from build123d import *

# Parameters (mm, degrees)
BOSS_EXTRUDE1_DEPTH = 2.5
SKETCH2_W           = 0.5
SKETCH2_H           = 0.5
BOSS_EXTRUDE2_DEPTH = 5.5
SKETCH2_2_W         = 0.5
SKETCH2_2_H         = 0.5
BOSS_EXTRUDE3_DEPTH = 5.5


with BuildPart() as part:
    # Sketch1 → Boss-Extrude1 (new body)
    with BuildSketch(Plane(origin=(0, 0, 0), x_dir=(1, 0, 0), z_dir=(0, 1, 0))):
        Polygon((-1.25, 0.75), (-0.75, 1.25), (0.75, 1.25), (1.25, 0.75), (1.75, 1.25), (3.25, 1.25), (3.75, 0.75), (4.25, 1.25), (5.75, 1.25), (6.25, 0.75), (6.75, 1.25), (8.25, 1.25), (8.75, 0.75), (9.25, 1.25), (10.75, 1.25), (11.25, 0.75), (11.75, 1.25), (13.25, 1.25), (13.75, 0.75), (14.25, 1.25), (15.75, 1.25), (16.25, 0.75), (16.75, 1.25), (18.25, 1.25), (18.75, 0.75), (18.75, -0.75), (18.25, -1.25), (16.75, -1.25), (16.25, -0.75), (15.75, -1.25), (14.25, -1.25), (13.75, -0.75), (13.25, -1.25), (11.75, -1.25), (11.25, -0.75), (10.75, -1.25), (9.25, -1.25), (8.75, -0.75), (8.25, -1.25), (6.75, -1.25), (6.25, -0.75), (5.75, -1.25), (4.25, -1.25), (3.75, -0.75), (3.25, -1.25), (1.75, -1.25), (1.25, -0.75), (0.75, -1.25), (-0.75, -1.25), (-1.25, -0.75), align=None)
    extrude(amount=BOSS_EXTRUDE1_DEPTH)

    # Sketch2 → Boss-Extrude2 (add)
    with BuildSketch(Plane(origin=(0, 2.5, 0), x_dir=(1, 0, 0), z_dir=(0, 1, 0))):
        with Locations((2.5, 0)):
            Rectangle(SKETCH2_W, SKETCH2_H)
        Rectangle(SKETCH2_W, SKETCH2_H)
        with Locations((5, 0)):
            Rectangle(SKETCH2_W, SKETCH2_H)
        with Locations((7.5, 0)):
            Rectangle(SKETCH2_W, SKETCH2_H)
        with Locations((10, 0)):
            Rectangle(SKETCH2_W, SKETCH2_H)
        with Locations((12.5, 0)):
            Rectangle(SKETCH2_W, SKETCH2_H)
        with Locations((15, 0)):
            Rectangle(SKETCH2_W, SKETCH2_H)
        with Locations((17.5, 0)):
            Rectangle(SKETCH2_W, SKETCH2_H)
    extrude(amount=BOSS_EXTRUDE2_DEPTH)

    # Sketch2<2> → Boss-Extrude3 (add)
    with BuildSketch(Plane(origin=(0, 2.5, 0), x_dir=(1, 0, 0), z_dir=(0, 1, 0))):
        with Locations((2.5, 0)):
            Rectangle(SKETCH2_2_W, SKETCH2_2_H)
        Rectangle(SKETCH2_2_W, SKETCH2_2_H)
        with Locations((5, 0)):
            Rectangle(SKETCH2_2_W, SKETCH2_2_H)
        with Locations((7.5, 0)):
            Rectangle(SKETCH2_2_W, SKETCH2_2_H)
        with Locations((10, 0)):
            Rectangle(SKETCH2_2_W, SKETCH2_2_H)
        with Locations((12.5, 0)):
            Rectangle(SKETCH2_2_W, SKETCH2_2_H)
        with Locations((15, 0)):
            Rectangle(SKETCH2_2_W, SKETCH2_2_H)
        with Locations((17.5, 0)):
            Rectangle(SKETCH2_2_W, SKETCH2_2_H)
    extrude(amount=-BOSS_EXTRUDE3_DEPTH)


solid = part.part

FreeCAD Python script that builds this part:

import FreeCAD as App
import Part
import Sketcher
Q = App.Units.Quantity


def add_polygon(sketch, points):
    """Adds a closed chain of lines whose ends are joined by coincident constraints."""
    first, n = sketch.GeometryCount, len(points)
    for a, b in zip(points, points[1:] + points[:1]):
        sketch.addGeometry(Part.LineSegment(App.Vector(*a, 0), App.Vector(*b, 0)), False)
    for i in range(n):
        sketch.addConstraint(Sketcher.Constraint("Coincident", first + i, 2, first + (i + 1) % n, 1))

doc = App.newDocument("Part")
body = doc.addObject("PartDesign::Body", "Body")

# Sketch on XZ plane
sketch1 = doc.addObject("Sketcher::SketchObject", "Sketch")
body.addObject(sketch1)
sketch1.AttachmentSupport = (doc.XZ_Plane, [""])
sketch1.MapMode = "FlatFace"
add_polygon(sketch1, [(-0.8, -1.2), (-1.2, -0.8), (-1.2, 0.8), (-0.8, 1.2), (0.8, 1.2), (1.2, 0.8), (1.8, 1.2), (3.2, 1.2), (3.8, 0.8), (4.2, 1.2), (5.8, 1.2), (6.2, 0.8), (6.8, 1.2), (8.2, 1.2), (8.8, 0.8), (9.2, 1.2), (10.8, 1.2), (11.2, 0.8), (11.8, 1.2), (13.2, 1.2), (13.8, 0.8), (14.2, 1.2), (15.8, 1.2), (16.2, 0.8), (16.8, 1.2), (18.2, 1.2), (18.8, 0.8), (18.8, -0.8), (18.2, -1.2), (16.8, -1.2), (16.2, -0.8), (15.8, -1.2), (14.2, -1.2), (13.8, -0.8), (13.2, -1.2), (11.8, -1.2), (11.2, -0.8), (10.8, -1.2), (9.2, -1.2), (8.8, -0.8), (8.2, -1.2), (6.8, -1.2), (6.2, -0.8), (5.8, -1.2), (4.2, -1.2), (3.8, -0.8), (3.2, -1.2), (1.8, -1.2), (1.2, -0.8), (0.8, -1.2)])  # lines 0-49
sketch1.addConstraint(Sketcher.Constraint("Vertical", 1))
sketch1.addConstraint(Sketcher.Constraint("Horizontal", 3))
sketch1.addConstraint(Sketcher.Constraint("Horizontal", 6))
sketch1.addConstraint(Sketcher.Constraint("Horizontal", 9))
sketch1.addConstraint(Sketcher.Constraint("Horizontal", 12))
sketch1.addConstraint(Sketcher.Constraint("Horizontal", 15))
sketch1.addConstraint(Sketcher.Constraint("Horizontal", 18))
sketch1.addConstraint(Sketcher.Constraint("Horizontal", 21))
sketch1.addConstraint(Sketcher.Constraint("Horizontal", 24))
sketch1.addConstraint(Sketcher.Constraint("Vertical", 26))
sketch1.addConstraint(Sketcher.Constraint("Horizontal", 28))
sketch1.addConstraint(Sketcher.Constraint("Horizontal", 31))
sketch1.addConstraint(Sketcher.Constraint("Horizontal", 34))
sketch1.addConstraint(Sketcher.Constraint("Horizontal", 37))
sketch1.addConstraint(Sketcher.Constraint("Horizontal", 40))
sketch1.addConstraint(Sketcher.Constraint("Horizontal", 43))
sketch1.addConstraint(Sketcher.Constraint("Horizontal", 46))
sketch1.addConstraint(Sketcher.Constraint("Horizontal", 49))
sketch1.addConstraint(Sketcher.Constraint("Symmetric", 0, 2, 4, 2, -1, 1))
sketch1.addConstraint(Sketcher.Constraint("Symmetric", 1, 2, 47, 2, -1, 1))
sketch1.addConstraint(Sketcher.Constraint("Symmetric", 2, 2, 48, 2, -1, 1))
sketch1.addConstraint(Sketcher.Constraint("Symmetric", 24, 2, 27, 2, -1))
sketch1.addConstraint(Sketcher.Constraint("Symmetric", 22, 2, 29, 2, -1))
sketch1.addConstraint(Sketcher.Constraint("Symmetric", 21, 2, 30, 2, -1))
sketch1.addConstraint(Sketcher.Constraint("Symmetric", 19, 2, 32, 2, -1))
sketch1.addConstraint(Sketcher.Constraint("Symmetric", 18, 2, 33, 2, -1))
sketch1.addConstraint(Sketcher.Constraint("Symmetric", 16, 2, 35, 2, -1))
sketch1.addConstraint(Sketcher.Constraint("Symmetric", 15, 2, 36, 2, -1))
sketch1.addConstraint(Sketcher.Constraint("Symmetric", 13, 2, 38, 2, -1))
sketch1.addConstraint(Sketcher.Constraint("Symmetric", 12, 2, 39, 2, -1))
sketch1.addConstraint(Sketcher.Constraint("Symmetric", 10, 2, 41, 2, -1))
sketch1.addConstraint(Sketcher.Constraint("Symmetric", 9, 2, 42, 2, -1))
sketch1.addConstraint(Sketcher.Constraint("Symmetric", 7, 2, 44, 2, -1))
sketch1.addConstraint(Sketcher.Constraint("Symmetric", 6, 2, 45, 2, -1))
sketch1.addConstraint(Sketcher.Constraint("Perpendicular", 0, 2))
sketch1.addConstraint(Sketcher.Constraint("Perpendicular", 2, 4))
sketch1.addConstraint(Sketcher.Constraint("Perpendicular", 4, 5))
sketch1.addConstraint(Sketcher.Constraint("Perpendicular", 5, 7))
sketch1.addConstraint(Sketcher.Constraint("Perpendicular", 7, 8))
sketch1.addConstraint(Sketcher.Constraint("Perpendicular", 8, 10))
sketch1.addConstraint(Sketcher.Constraint("Perpendicular", 10, 11))
sketch1.addConstraint(Sketcher.Constraint("Perpendicular", 11, 13))
sketch1.addConstraint(Sketcher.Constraint("Perpendicular", 13, 14))
sketch1.addConstraint(Sketcher.Constraint("Perpendicular", 14, 16))
sketch1.addConstraint(Sketcher.Constraint("Perpendicular", 16, 17))
sketch1.addConstraint(Sketcher.Constraint("Perpendicular", 17, 19))
sketch1.addConstraint(Sketcher.Constraint("Perpendicular", 19, 20))
sketch1.addConstraint(Sketcher.Constraint("Perpendicular", 20, 22))
sketch1.addConstraint(Sketcher.Constraint("Perpendicular", 22, 23))
sketch1.addConstraint(Sketcher.Constraint("Perpendicular", 23, 25))
sketch1.addConstraint(Sketcher.Constraint("Perpendicular", 25, 27))
sketch1.addConstraint(Sketcher.Constraint("Perpendicular", 27, 29))
sketch1.addConstraint(Sketcher.Constraint("Perpendicular", 29, 30))
sketch1.addConstraint(Sketcher.Constraint("Perpendicular", 30, 32))
sketch1.addConstraint(Sketcher.Constraint("Perpendicular", 33, 35))
sketch1.addConstraint(Sketcher.Constraint("Perpendicular", 36, 38))
sketch1.addConstraint(Sketcher.Constraint("Perpendicular", 39, 41))
sketch1.addConstraint(Sketcher.Constraint("Perpendicular", 42, 44))
sketch1.addConstraint(Sketcher.Constraint("Perpendicular", 45, 47))
sketch1.addConstraint(Sketcher.Constraint("Horizontal", 1, 2, 4, 2))
sketch1.addConstraint(Sketcher.Constraint("Horizontal", 3, 2, 5, 2))
sketch1.addConstraint(Sketcher.Constraint("Horizontal", 4, 2, 7, 2))
sketch1.addConstraint(Sketcher.Constraint("Horizontal", 6, 2, 8, 2))
sketch1.addConstraint(Sketcher.Constraint("Horizontal", 7, 2, 10, 2))
sketch1.addConstraint(Sketcher.Constraint("Horizontal", 9, 2, 11, 2))
sketch1.addConstraint(Sketcher.Constraint("Horizontal", 10, 2, 13, 2))
sketch1.addConstraint(Sketcher.Constraint("Horizontal", 12, 2, 14, 2))
sketch1.addConstraint(Sketcher.Constraint("Horizontal", 13, 2, 16, 2))
sketch1.addConstraint(Sketcher.Constraint("Horizontal", 15, 2, 17, 2))
sketch1.addConstraint(Sketcher.Constraint("Horizontal", 16, 2, 19, 2))
sketch1.addConstraint(Sketcher.Constraint("Horizontal", 18, 2, 20, 2))
sketch1.addConstraint(Sketcher.Constraint("Horizontal", 19, 2, 22, 2))
sketch1.addConstraint(Sketcher.Constraint("Horizontal", 21, 2, 23, 2))
sketch1.addConstraint(Sketcher.Constraint("Horizontal", 22, 2, 25, 2))
sketch1.addConstraint(Sketcher.Constraint("Equal", 3, 6))
sketch1.addConstraint(Sketcher.Constraint("Equal", 6, 9))
sketch1.addConstraint(Sketcher.Constraint("Equal", 9, 12))
sketch1.addConstraint(Sketcher.Constraint("Equal", 12, 15))
sketch1.addConstraint(Sketcher.Constraint("Equal", 15, 18))
sketch1.addConstraint(Sketcher.Constraint("Equal", 18, 21))
sketch1.addConstraint(Sketcher.Constraint("Equal", 21, 24))
sketch1.addConstraint(Sketcher.Constraint("Equal", 49, 1))
sketch1.addConstraint(Sketcher.Constraint("DistanceX", 3, 1, 3, 2, Q("1.5 mm")))
sketch1.addConstraint(Sketcher.Constraint("DistanceY", 0, 2, 2, 2, Q("2 mm")))
pad1 = doc.addObject("PartDesign::Pad", "Pad")
body.addObject(pad1)
pad1.Profile = sketch1
pad1.Length = 2.5
pad1.Reversed = True

# Sketch on XZ plane
sketch2 = doc.addObject("Sketcher::SketchObject", "Sketch001")
body.addObject(sketch2)
sketch2.AttachmentSupport = (doc.XZ_Plane, [""])
sketch2.MapMode = "FlatFace"
sketch2.AttachmentOffset = App.Placement(App.Vector(0, 0, -2.5), App.Rotation())
add_polygon(sketch2, [(2.2, -0.2), (2.2, 0.2), (2.8, 0.2), (2.8, -0.2)])  # lines 0-3
add_polygon(sketch2, [(-0.2, -0.2), (-0.2, 0.2), (0.2, 0.2), (0.2, -0.2)])  # lines 4-7
add_polygon(sketch2, [(4.8, -0.2), (4.8, 0.2), (5.2, 0.2), (5.2, -0.2)])  # lines 8-11
add_polygon(sketch2, [(7.2, -0.2), (7.2, 0.2), (7.8, 0.2), (7.8, -0.2)])  # lines 12-15
add_polygon(sketch2, [(9.8, -0.2), (9.8, 0.2), (10.2, 0.2), (10.2, -0.2)])  # lines 16-19
add_polygon(sketch2, [(12.2, -0.2), (12.2, 0.2), (12.8, 0.2), (12.8, -0.2)])  # lines 20-23
add_polygon(sketch2, [(14.8, -0.2), (14.8, 0.2), (15.2, 0.2), (15.2, -0.2)])  # lines 24-27
add_polygon(sketch2, [(17.2, -0.2), (17.2, 0.2), (17.8, 0.2), (17.8, -0.2)])  # lines 28-31
sketch2.addConstraint(Sketcher.Constraint("Vertical", 0))
sketch2.addConstraint(Sketcher.Constraint("Horizontal", 1))
sketch2.addConstraint(Sketcher.Constraint("Vertical", 2))
sketch2.addConstraint(Sketcher.Constraint("Horizontal", 3))
sketch2.addConstraint(Sketcher.Constraint("Vertical", 4))
sketch2.addConstraint(Sketcher.Constraint("Horizontal", 5))
sketch2.addConstraint(Sketcher.Constraint("Vertical", 6))
sketch2.addConstraint(Sketcher.Constraint("Horizontal", 7))
sketch2.addConstraint(Sketcher.Constraint("Vertical", 8))
sketch2.addConstraint(Sketcher.Constraint("Horizontal", 9))
sketch2.addConstraint(Sketcher.Constraint("Vertical", 10))
sketch2.addConstraint(Sketcher.Constraint("Horizontal", 11))
sketch2.addConstraint(Sketcher.Constraint("Vertical", 12))
sketch2.addConstraint(Sketcher.Constraint("Horizontal", 13))
sketch2.addConstraint(Sketcher.Constraint("Vertical", 14))
sketch2.addConstraint(Sketcher.Constraint("Horizontal", 15))
sketch2.addConstraint(Sketcher.Constraint("Vertical", 16))
sketch2.addConstraint(Sketcher.Constraint("Horizontal", 17))
sketch2.addConstraint(Sketcher.Constraint("Vertical", 18))
sketch2.addConstraint(Sketcher.Constraint("Horizontal", 19))
sketch2.addConstraint(Sketcher.Constraint("Vertical", 20))
sketch2.addConstraint(Sketcher.Constraint("Horizontal", 21))
sketch2.addConstraint(Sketcher.Constraint("Vertical", 22))
sketch2.addConstraint(Sketcher.Constraint("Horizontal", 23))
sketch2.addConstraint(Sketcher.Constraint("Vertical", 24))
sketch2.addConstraint(Sketcher.Constraint("Horizontal", 25))
sketch2.addConstraint(Sketcher.Constraint("Vertical", 26))
sketch2.addConstraint(Sketcher.Constraint("Horizontal", 27))
sketch2.addConstraint(Sketcher.Constraint("Vertical", 28))
sketch2.addConstraint(Sketcher.Constraint("Horizontal", 29))
sketch2.addConstraint(Sketcher.Constraint("Vertical", 30))
sketch2.addConstraint(Sketcher.Constraint("Horizontal", 31))
sketch2.addConstraint(Sketcher.Constraint("Symmetric", 4, 2, 6, 2, -1, 1))
sketch2.addConstraint(Sketcher.Constraint("Horizontal", 1, 2, 4, 2))
sketch2.addConstraint(Sketcher.Constraint("Horizontal", 3, 2, 6, 2))
sketch2.addConstraint(Sketcher.Constraint("Horizontal", 5, 2, 8, 2))
sketch2.addConstraint(Sketcher.Constraint("Horizontal", 7, 2, 10, 2))
sketch2.addConstraint(Sketcher.Constraint("Horizontal", 9, 2, 12, 2))
sketch2.addConstraint(Sketcher.Constraint("Horizontal", 11, 2, 14, 2))
sketch2.addConstraint(Sketcher.Constraint("Horizontal", 13, 2, 16, 2))
sketch2.addConstraint(Sketcher.Constraint("Horizontal", 15, 2, 18, 2))
sketch2.addConstraint(Sketcher.Constraint("Horizontal", 17, 2, 20, 2))
sketch2.addConstraint(Sketcher.Constraint("Horizontal", 19, 2, 22, 2))
sketch2.addConstraint(Sketcher.Constraint("Horizontal", 21, 2, 24, 2))
sketch2.addConstraint(Sketcher.Constraint("Horizontal", 23, 2, 26, 2))
sketch2.addConstraint(Sketcher.Constraint("Horizontal", 25, 2, 28, 2))
sketch2.addConstraint(Sketcher.Constraint("Horizontal", 27, 2, 30, 2))
sketch2.addConstraint(Sketcher.Constraint("Equal", 3, 5))
sketch2.addConstraint(Sketcher.Constraint("Equal", 7, 9))
sketch2.addConstraint(Sketcher.Constraint("Equal", 11, 13))
sketch2.addConstraint(Sketcher.Constraint("Equal", 15, 17))
sketch2.addConstraint(Sketcher.Constraint("Equal", 19, 21))
sketch2.addConstraint(Sketcher.Constraint("Equal", 23, 25))
sketch2.addConstraint(Sketcher.Constraint("Equal", 27, 29))
sketch2.addConstraint(Sketcher.Constraint("Equal", 31, 0))
sketch2.addConstraint(Sketcher.Constraint("DistanceX", 1, 1, 1, 2, Q("0.5 mm")))
sketch2.addConstraint(Sketcher.Constraint("DistanceX", 4, 2, 1, 2, Q("3 mm")))
sketch2.addConstraint(Sketcher.Constraint("DistanceX", 1, 2, 8, 2, Q("2 mm")))
sketch2.addConstraint(Sketcher.Constraint("DistanceX", 9, 2, 12, 2, Q("2 mm")))
sketch2.addConstraint(Sketcher.Constraint("DistanceX", 13, 2, 16, 2, Q("2 mm")))
sketch2.addConstraint(Sketcher.Constraint("DistanceX", 17, 2, 20, 2, Q("2 mm")))
sketch2.addConstraint(Sketcher.Constraint("DistanceX", 21, 2, 24, 2, Q("2 mm")))
sketch2.addConstraint(Sketcher.Constraint("DistanceX", 25, 2, 28, 2, Q("2 mm")))
pad2 = doc.addObject("PartDesign::Pad", "Pad001")
body.addObject(pad2)
pad2.Profile = sketch2
pad2.Length = 5.5
pad2.Reversed = True

# Sketch on XZ plane
sketch3 = doc.addObject("Sketcher::SketchObject", "Sketch002")
body.addObject(sketch3)
sketch3.AttachmentSupport = (doc.XZ_Plane, [""])
sketch3.MapMode = "FlatFace"
sketch3.AttachmentOffset = App.Placement(App.Vector(0, 0, -2.5), App.Rotation())
add_polygon(sketch3, [(2.2, -0.2), (2.2, 0.2), (2.8, 0.2), (2.8, -0.2)])  # lines 0-3
add_polygon(sketch3, [(-0.2, -0.2), (-0.2, 0.2), (0.2, 0.2), (0.2, -0.2)])  # lines 4-7
add_polygon(sketch3, [(4.8, -0.2), (4.8, 0.2), (5.2, 0.2), (5.2, -0.2)])  # lines 8-11
add_polygon(sketch3, [(7.2, -0.2), (7.2, 0.2), (7.8, 0.2), (7.8, -0.2)])  # lines 12-15
add_polygon(sketch3, [(9.8, -0.2), (9.8, 0.2), (10.2, 0.2), (10.2, -0.2)])  # lines 16-19
add_polygon(sketch3, [(12.2, -0.2), (12.2, 0.2), (12.8, 0.2), (12.8, -0.2)])  # lines 20-23
add_polygon(sketch3, [(14.8, -0.2), (14.8, 0.2), (15.2, 0.2), (15.2, -0.2)])  # lines 24-27
add_polygon(sketch3, [(17.2, -0.2), (17.2, 0.2), (17.8, 0.2), (17.8, -0.2)])  # lines 28-31
sketch3.addConstraint(Sketcher.Constraint("Vertical", 0))
sketch3.addConstraint(Sketcher.Constraint("Horizontal", 1))
sketch3.addConstraint(Sketcher.Constraint("Vertical", 2))
sketch3.addConstraint(Sketcher.Constraint("Horizontal", 3))
sketch3.addConstraint(Sketcher.Constraint("Vertical", 4))
sketch3.addConstraint(Sketcher.Constraint("Horizontal", 5))
sketch3.addConstraint(Sketcher.Constraint("Vertical", 6))
sketch3.addConstraint(Sketcher.Constraint("Horizontal", 7))
sketch3.addConstraint(Sketcher.Constraint("Vertical", 8))
sketch3.addConstraint(Sketcher.Constraint("Horizontal", 9))
sketch3.addConstraint(Sketcher.Constraint("Vertical", 10))
sketch3.addConstraint(Sketcher.Constraint("Horizontal", 11))
sketch3.addConstraint(Sketcher.Constraint("Vertical", 12))
sketch3.addConstraint(Sketcher.Constraint("Horizontal", 13))
sketch3.addConstraint(Sketcher.Constraint("Vertical", 14))
sketch3.addConstraint(Sketcher.Constraint("Horizontal", 15))
sketch3.addConstraint(Sketcher.Constraint("Vertical", 16))
sketch3.addConstraint(Sketcher.Constraint("Horizontal", 17))
sketch3.addConstraint(Sketcher.Constraint("Vertical", 18))
sketch3.addConstraint(Sketcher.Constraint("Horizontal", 19))
sketch3.addConstraint(Sketcher.Constraint("Vertical", 20))
sketch3.addConstraint(Sketcher.Constraint("Horizontal", 21))
sketch3.addConstraint(Sketcher.Constraint("Vertical", 22))
sketch3.addConstraint(Sketcher.Constraint("Horizontal", 23))
sketch3.addConstraint(Sketcher.Constraint("Vertical", 24))
sketch3.addConstraint(Sketcher.Constraint("Horizontal", 25))
sketch3.addConstraint(Sketcher.Constraint("Vertical", 26))
sketch3.addConstraint(Sketcher.Constraint("Horizontal", 27))
sketch3.addConstraint(Sketcher.Constraint("Vertical", 28))
sketch3.addConstraint(Sketcher.Constraint("Horizontal", 29))
sketch3.addConstraint(Sketcher.Constraint("Vertical", 30))
sketch3.addConstraint(Sketcher.Constraint("Horizontal", 31))
sketch3.addConstraint(Sketcher.Constraint("Symmetric", 4, 2, 6, 2, -1, 1))
sketch3.addConstraint(Sketcher.Constraint("Horizontal", 1, 2, 4, 2))
sketch3.addConstraint(Sketcher.Constraint("Horizontal", 3, 2, 6, 2))
sketch3.addConstraint(Sketcher.Constraint("Horizontal", 5, 2, 8, 2))
sketch3.addConstraint(Sketcher.Constraint("Horizontal", 7, 2, 10, 2))
sketch3.addConstraint(Sketcher.Constraint("Horizontal", 9, 2, 12, 2))
sketch3.addConstraint(Sketcher.Constraint("Horizontal", 11, 2, 14, 2))
sketch3.addConstraint(Sketcher.Constraint("Horizontal", 13, 2, 16, 2))
sketch3.addConstraint(Sketcher.Constraint("Horizontal", 15, 2, 18, 2))
sketch3.addConstraint(Sketcher.Constraint("Horizontal", 17, 2, 20, 2))
sketch3.addConstraint(Sketcher.Constraint("Horizontal", 19, 2, 22, 2))
sketch3.addConstraint(Sketcher.Constraint("Horizontal", 21, 2, 24, 2))
sketch3.addConstraint(Sketcher.Constraint("Horizontal", 23, 2, 26, 2))
sketch3.addConstraint(Sketcher.Constraint("Horizontal", 25, 2, 28, 2))
sketch3.addConstraint(Sketcher.Constraint("Horizontal", 27, 2, 30, 2))
sketch3.addConstraint(Sketcher.Constraint("Equal", 3, 5))
sketch3.addConstraint(Sketcher.Constraint("Equal", 7, 9))
sketch3.addConstraint(Sketcher.Constraint("Equal", 11, 13))
sketch3.addConstraint(Sketcher.Constraint("Equal", 15, 17))
sketch3.addConstraint(Sketcher.Constraint("Equal", 19, 21))
sketch3.addConstraint(Sketcher.Constraint("Equal", 23, 25))
sketch3.addConstraint(Sketcher.Constraint("Equal", 27, 29))
sketch3.addConstraint(Sketcher.Constraint("Equal", 31, 0))
sketch3.addConstraint(Sketcher.Constraint("DistanceX", 1, 1, 1, 2, Q("0.5 mm")))
sketch3.addConstraint(Sketcher.Constraint("DistanceX", 4, 2, 1, 2, Q("3 mm")))
sketch3.addConstraint(Sketcher.Constraint("DistanceX", 1, 2, 8, 2, Q("2 mm")))
sketch3.addConstraint(Sketcher.Constraint("DistanceX", 9, 2, 12, 2, Q("2 mm")))
sketch3.addConstraint(Sketcher.Constraint("DistanceX", 13, 2, 16, 2, Q("2 mm")))
sketch3.addConstraint(Sketcher.Constraint("DistanceX", 17, 2, 20, 2, Q("2 mm")))
sketch3.addConstraint(Sketcher.Constraint("DistanceX", 21, 2, 24, 2, Q("2 mm")))
sketch3.addConstraint(Sketcher.Constraint("DistanceX", 25, 2, 28, 2, Q("2 mm")))
pad3 = doc.addObject("PartDesign::Pad", "Pad002")
body.addObject(pad3)
pad3.Profile = sketch3
pad3.Length = 5.5

doc.recompute()
